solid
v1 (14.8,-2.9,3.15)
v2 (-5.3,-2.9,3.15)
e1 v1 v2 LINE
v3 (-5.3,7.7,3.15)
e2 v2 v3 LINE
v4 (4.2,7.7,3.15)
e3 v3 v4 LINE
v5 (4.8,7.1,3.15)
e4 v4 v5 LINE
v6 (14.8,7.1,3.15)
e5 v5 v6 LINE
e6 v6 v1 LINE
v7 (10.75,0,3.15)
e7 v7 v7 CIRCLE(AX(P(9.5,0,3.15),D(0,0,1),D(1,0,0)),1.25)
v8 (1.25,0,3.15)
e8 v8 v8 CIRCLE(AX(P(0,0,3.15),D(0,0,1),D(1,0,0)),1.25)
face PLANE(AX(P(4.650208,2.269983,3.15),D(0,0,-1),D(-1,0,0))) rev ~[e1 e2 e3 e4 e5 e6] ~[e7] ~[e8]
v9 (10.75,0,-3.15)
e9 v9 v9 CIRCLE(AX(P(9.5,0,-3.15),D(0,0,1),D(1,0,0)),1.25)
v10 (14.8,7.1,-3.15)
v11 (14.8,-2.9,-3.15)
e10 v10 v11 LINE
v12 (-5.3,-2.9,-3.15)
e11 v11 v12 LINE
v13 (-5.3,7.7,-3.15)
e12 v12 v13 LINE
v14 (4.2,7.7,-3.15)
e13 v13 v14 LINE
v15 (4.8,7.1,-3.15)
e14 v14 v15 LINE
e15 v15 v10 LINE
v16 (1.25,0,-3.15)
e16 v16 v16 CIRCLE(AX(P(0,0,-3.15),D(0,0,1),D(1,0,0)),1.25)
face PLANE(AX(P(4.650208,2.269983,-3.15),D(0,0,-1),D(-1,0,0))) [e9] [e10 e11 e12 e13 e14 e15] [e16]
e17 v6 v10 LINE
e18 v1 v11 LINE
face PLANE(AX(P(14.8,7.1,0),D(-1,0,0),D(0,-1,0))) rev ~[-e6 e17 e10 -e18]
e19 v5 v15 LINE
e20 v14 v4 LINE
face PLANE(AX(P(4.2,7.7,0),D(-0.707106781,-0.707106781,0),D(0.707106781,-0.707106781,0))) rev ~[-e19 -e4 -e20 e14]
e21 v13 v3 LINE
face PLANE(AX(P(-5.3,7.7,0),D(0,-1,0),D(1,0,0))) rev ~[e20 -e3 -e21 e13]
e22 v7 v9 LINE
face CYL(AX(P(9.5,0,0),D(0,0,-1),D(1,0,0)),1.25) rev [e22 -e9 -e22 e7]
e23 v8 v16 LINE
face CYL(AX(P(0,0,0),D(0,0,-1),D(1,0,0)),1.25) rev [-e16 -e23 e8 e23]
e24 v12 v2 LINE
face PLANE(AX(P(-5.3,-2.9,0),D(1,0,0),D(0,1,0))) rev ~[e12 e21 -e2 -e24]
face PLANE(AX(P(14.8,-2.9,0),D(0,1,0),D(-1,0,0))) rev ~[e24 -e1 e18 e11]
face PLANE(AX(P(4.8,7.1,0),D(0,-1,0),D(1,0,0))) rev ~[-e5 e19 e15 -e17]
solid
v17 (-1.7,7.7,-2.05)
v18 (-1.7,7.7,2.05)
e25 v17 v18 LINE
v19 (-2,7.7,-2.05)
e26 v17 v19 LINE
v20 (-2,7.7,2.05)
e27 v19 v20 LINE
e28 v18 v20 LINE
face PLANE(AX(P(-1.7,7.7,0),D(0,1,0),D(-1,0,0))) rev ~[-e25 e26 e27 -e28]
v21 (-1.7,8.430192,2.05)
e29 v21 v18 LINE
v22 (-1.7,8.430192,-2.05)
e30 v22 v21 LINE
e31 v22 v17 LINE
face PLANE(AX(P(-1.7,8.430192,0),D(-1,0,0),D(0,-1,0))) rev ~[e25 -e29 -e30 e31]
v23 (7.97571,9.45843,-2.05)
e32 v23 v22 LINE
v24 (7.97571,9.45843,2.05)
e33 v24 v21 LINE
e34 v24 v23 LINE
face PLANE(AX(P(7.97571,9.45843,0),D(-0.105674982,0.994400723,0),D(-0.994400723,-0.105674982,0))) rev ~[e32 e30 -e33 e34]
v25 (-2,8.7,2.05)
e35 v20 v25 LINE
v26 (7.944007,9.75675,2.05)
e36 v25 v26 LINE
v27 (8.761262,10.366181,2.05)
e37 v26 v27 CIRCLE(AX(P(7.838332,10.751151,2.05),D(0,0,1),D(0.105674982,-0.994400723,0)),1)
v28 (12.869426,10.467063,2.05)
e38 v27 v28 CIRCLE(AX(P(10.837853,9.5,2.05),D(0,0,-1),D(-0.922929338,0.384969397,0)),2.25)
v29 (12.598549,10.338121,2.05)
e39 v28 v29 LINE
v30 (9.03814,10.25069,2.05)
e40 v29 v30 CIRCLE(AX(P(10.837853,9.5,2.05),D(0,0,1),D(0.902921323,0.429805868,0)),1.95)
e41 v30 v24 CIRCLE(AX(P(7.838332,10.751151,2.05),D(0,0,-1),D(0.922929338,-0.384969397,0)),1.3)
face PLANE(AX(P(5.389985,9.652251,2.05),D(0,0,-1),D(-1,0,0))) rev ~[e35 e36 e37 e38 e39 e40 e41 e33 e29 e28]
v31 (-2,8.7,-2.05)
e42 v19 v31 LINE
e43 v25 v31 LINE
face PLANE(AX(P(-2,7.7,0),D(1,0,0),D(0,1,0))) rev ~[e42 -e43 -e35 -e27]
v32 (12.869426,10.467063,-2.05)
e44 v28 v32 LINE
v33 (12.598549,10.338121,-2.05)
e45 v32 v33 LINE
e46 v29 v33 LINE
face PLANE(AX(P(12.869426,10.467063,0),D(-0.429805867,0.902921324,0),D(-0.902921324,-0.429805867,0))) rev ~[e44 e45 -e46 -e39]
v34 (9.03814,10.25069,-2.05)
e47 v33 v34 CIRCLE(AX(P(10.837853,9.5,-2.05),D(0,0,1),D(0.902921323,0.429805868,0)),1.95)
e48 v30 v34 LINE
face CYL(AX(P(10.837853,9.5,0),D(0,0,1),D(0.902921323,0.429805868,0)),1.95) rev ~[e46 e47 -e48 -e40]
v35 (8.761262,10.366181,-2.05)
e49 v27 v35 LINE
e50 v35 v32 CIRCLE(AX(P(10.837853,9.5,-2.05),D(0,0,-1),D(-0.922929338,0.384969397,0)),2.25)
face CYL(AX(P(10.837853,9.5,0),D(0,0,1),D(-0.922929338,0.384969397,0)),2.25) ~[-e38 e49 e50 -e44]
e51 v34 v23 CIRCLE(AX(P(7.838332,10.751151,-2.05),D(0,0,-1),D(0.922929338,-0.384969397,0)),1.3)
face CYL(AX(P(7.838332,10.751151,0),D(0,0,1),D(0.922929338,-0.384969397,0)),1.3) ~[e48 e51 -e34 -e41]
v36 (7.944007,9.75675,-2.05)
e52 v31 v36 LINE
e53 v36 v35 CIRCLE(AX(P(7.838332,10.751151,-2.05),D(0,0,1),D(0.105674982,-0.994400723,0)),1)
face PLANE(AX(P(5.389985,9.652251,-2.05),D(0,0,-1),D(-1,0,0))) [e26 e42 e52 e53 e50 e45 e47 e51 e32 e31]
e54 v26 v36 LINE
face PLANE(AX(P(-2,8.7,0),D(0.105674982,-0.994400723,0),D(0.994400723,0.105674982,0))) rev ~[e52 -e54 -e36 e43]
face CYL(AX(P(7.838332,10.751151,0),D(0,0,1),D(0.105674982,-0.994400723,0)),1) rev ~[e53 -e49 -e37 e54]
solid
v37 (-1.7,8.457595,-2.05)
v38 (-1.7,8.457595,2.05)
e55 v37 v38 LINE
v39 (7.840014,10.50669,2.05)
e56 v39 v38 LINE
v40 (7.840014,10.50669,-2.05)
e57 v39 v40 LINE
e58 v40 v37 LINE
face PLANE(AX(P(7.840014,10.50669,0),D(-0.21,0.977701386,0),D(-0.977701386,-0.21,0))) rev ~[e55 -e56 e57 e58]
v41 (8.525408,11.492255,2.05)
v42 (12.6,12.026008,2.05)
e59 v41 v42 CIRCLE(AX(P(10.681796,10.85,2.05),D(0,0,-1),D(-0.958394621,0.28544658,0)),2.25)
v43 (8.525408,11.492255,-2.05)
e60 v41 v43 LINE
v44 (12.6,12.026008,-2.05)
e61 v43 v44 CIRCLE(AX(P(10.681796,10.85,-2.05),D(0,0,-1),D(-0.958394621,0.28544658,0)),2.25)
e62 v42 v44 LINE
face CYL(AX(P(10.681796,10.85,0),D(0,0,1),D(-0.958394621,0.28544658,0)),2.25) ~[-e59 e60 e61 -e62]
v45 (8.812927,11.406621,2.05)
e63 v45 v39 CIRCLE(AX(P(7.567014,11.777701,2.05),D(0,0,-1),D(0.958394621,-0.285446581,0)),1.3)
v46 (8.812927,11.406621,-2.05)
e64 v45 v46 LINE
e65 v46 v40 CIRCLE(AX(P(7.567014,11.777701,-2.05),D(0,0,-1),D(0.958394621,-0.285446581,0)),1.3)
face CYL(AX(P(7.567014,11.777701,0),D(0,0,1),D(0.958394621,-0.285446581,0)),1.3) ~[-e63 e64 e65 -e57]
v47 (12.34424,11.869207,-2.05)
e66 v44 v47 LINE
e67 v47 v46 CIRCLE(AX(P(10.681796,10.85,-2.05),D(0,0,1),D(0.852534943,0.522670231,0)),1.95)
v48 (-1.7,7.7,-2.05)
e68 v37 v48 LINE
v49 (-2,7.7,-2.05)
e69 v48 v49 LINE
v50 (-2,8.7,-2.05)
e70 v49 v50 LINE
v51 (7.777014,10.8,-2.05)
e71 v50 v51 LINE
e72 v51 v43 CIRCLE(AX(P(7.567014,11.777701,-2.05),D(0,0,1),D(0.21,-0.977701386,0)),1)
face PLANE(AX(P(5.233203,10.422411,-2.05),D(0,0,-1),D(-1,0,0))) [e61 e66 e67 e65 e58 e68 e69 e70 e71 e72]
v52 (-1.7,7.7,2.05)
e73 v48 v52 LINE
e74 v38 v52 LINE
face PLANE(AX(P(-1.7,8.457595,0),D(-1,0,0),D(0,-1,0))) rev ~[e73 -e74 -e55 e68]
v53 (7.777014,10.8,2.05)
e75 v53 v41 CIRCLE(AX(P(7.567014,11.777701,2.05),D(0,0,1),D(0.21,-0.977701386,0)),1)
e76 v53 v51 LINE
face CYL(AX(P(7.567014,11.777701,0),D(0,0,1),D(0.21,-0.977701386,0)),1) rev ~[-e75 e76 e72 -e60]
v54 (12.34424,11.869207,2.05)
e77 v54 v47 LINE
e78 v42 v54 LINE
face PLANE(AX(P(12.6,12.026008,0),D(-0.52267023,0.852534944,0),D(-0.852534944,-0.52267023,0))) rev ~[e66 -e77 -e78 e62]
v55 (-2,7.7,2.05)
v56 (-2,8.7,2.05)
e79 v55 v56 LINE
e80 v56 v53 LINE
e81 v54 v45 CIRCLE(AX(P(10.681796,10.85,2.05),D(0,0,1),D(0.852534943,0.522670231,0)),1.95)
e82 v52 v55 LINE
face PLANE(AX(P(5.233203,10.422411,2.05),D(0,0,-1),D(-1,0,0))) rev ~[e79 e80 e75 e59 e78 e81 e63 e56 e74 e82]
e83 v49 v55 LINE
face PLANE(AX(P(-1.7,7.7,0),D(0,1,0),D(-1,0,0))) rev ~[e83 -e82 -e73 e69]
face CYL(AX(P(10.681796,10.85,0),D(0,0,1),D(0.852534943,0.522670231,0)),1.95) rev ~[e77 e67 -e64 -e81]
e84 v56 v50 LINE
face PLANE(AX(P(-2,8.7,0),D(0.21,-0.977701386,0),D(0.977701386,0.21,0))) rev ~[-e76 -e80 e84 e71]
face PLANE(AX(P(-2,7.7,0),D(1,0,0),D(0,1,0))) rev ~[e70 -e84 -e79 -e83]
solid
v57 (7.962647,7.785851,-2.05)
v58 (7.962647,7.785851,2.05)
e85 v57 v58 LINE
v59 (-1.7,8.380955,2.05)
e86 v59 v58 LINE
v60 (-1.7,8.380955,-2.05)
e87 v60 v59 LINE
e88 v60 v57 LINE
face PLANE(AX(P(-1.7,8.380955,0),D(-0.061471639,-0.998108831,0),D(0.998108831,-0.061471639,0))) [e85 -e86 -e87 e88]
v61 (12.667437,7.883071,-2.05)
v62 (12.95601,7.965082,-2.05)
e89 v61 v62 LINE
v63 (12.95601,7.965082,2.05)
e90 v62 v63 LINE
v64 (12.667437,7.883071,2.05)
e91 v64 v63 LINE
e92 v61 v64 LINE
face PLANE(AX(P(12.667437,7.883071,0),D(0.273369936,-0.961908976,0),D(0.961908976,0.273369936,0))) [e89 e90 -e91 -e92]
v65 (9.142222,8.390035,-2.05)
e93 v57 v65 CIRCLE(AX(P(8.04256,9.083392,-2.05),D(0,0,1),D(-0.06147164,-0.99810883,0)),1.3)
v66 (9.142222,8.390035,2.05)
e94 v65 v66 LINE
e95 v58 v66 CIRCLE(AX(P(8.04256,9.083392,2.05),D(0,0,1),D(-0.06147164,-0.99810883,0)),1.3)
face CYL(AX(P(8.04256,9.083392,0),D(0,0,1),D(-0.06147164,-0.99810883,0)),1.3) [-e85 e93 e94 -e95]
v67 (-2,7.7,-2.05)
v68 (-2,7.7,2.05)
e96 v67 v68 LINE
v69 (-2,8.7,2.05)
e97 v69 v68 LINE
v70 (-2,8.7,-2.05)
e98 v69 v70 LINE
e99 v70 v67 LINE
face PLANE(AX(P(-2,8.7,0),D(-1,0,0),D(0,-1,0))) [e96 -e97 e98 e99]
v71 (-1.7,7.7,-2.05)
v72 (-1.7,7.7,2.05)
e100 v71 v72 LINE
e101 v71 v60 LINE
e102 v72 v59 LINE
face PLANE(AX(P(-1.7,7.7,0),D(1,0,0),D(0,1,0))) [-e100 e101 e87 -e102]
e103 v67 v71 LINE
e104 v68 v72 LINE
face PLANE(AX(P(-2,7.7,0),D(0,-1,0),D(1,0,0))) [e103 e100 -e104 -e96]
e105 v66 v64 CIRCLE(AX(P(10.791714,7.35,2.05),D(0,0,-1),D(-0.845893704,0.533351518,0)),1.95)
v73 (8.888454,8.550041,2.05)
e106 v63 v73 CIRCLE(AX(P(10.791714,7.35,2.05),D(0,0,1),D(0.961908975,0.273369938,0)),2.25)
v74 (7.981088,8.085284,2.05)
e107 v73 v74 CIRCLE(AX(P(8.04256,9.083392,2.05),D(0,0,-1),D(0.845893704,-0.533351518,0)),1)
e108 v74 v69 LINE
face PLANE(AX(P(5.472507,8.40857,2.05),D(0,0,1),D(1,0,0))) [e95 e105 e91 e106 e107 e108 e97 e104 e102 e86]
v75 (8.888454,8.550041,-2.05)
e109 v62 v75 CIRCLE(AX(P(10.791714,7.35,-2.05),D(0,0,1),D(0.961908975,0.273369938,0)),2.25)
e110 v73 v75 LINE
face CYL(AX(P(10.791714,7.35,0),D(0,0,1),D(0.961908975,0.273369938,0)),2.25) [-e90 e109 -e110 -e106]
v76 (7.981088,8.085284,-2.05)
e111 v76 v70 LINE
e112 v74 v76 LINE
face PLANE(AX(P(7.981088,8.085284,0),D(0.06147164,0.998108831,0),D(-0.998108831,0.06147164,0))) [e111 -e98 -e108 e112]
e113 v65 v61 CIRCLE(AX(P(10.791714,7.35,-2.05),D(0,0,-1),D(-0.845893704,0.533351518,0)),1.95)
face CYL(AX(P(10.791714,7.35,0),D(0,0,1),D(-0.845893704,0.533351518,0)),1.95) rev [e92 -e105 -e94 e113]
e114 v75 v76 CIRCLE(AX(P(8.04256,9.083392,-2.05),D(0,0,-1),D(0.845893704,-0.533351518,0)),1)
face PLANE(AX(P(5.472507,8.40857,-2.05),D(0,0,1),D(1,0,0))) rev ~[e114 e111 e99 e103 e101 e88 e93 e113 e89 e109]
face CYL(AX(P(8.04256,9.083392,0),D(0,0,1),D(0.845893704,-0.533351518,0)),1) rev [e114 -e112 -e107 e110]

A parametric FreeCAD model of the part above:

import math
import FreeCAD as App
import Part
import Sketcher

V = App.Vector
Q = App.Units.Quantity

doc = App.newDocument("Part")
body = doc.addObject("PartDesign::Body", "Body")

sketch1 = body.newObject("Sketcher::SketchObject", "Sketch")
sketch1.AttachmentSupport = (doc.getObject("XY_Plane"), [""])
sketch1.MapMode = "FlatFace"
sketch1.addGeometry(Part.LineSegment(V(4.8, 7.1, 0), V(4.2, 7.7, 0)), False)
sketch1.addGeometry(Part.LineSegment(V(4.2, 7.7, 0), V(-5.3, 7.7, 0)), False)
sketch1.addGeometry(Part.LineSegment(V(-5.3, 7.7, 0), V(-5.3, -2.9, 0)), False)
sketch1.addGeometry(Part.LineSegment(V(-5.3, -2.9, 0), V(14.8, -2.9, 0)), False)
sketch1.addGeometry(Part.LineSegment(V(14.8, -2.9, 0), V(14.8, 7.1, 0)), False)
sketch1.addGeometry(Part.LineSegment(V(14.8, 7.1, 0), V(4.8, 7.1, 0)), False)
sketch1.addGeometry(Part.Circle(V(9.5, 0, 0), V(0, 0, 1), 1.2), False)
sketch1.addGeometry(Part.Circle(V(0, 0, 0), V(0, 0, 1), 1.2), False)
sketch1.addConstraint(Sketcher.Constraint("Coincident", 0, 2, 1, 1))
sketch1.addConstraint(Sketcher.Constraint("Coincident", 1, 2, 2, 1))
sketch1.addConstraint(Sketcher.Constraint("Coincident", 2, 2, 3, 1))
sketch1.addConstraint(Sketcher.Constraint("Coincident", 3, 2, 4, 1))
sketch1.addConstraint(Sketcher.Constraint("Coincident", 4, 2, 5, 1))
sketch1.addConstraint(Sketcher.Constraint("Coincident", 5, 2, 0, 1))
sketch1.addConstraint(Sketcher.Constraint("Horizontal", 1))
sketch1.addConstraint(Sketcher.Constraint("Vertical", 2))
sketch1.addConstraint(Sketcher.Constraint("Horizontal", 3))
sketch1.addConstraint(Sketcher.Constraint("Vertical", 4))
sketch1.addConstraint(Sketcher.Constraint("Horizontal", 5))
sketch1.addConstraint(Sketcher.Constraint("Coincident", 7, 3, -1, 1))
sketch1.addConstraint(Sketcher.Constraint("Equal", 6, 7))
sketch1.addConstraint(Sketcher.Constraint("PointOnObject", 6, 3, -1))
sketch1.addConstraint(Sketcher.Constraint("Equal", 5, 4))
sketch1.addConstraint(Sketcher.Constraint("Diameter", 6, Q("2.5 mm")))
sketch1.addConstraint(Sketcher.Constraint("DistanceX", 5, 2, 5, 1, Q("10 mm")))
sketch1.addConstraint(Sketcher.Constraint("Angle", 0, Q("135 deg")))
sketch1.addConstraint(Sketcher.Constraint("DistanceX", 1, 2, 1, 1, Q("9.5 mm")))
sketch1.addConstraint(Sketcher.Constraint("DistanceX", 3, 1, 3, 2, Q("20.1 mm")))
sketch1.addConstraint(Sketcher.Constraint("DistanceX", -1, 1, 6, 3, Q("9.5 mm")))
sketch1.addConstraint(Sketcher.Constraint("DistanceX", -1, 1, 0, 2, Q("4.2 mm")))
sketch1.addConstraint(Sketcher.Constraint("DistanceY", -1, 1, 0, 2, Q("7.7 mm")))
pad1 = body.newObject("PartDesign::Pad", "Pad")
pad1.Profile = sketch1
pad1.Length = 6.3
pad1.Midplane = True
body2 = doc.addObject("PartDesign::Body", "Body001")

sketch2 = body2.newObject("Sketcher::SketchObject", "Sketch001")
sketch2.AttachmentSupport = (doc.getObject("XY_Plane001"), [""])
sketch2.MapMode = "FlatFace"
sketch2.addGeometry(Part.LineSegment(V(-2, 8.7, 0), V(-2, 7.7, 0)), False)
sketch2.addGeometry(Part.LineSegment(V(-2, 7.7, 0), V(-1.7, 7.7, 0)), False)
sketch2.addGeometry(Part.LineSegment(V(-1.7, 7.7, 0), V(-1.7, 8.46, 0)), False)
sketch2.addGeometry(Part.LineSegment(V(-1.7, 8.46, 0), V(7.84, 10.51, 0)), False)
sketch2.addGeometry(Part.ArcOfCircle(Part.Circle(V(7.57, 11.78, 0), V(0, 0, 1), 1.3), math.radians(-78), math.radians(-17)), False)
sketch2.addGeometry(Part.ArcOfCircle(Part.Circle(V(10.68, 10.85, 0), V(0, 0, 1), 1.95), math.radians(32), math.radians(163)), False)
sketch2.addGeometry(Part.LineSegment(V(12.34, 11.87, 0), V(12.6, 12.03, 0)), False)
sketch2.addGeometry(Part.ArcOfCircle(Part.Circle(V(10.68, 10.85, 0), V(0, 0, 1), 2.25), math.radians(32), math.radians(163)), False)
sketch2.addGeometry(Part.ArcOfCircle(Part.Circle(V(7.57, 11.78, 0), V(0, 0, 1), 1), math.radians(-78), math.radians(-17)), False)
sketch2.addGeometry(Part.LineSegment(V(7.78, 10.8, 0), V(-2, 8.7, 0)), False)
sketch2.addConstraint(Sketcher.Constraint("Coincident", 0, 2, 1, 1))
sketch2.addConstraint(Sketcher.Constraint("Coincident", 1, 2, 2, 1))
sketch2.addConstraint(Sketcher.Constraint("Coincident", 2, 2, 3, 1))
sketch2.addConstraint(Sketcher.Constraint("Tangent", 3, 2, 4, 1))
sketch2.addConstraint(Sketcher.Constraint("Tangent", 4, 2, 5, 2))
sketch2.addConstraint(Sketcher.Constraint("Coincident", 5, 1, 6, 1))
sketch2.addConstraint(Sketcher.Constraint("Coincident", 6, 2, 7, 1))
sketch2.addConstraint(Sketcher.Constraint("Tangent", 7, 2, 8, 2))
sketch2.addConstraint(Sketcher.Constraint("Tangent", 8, 1, 9, 1))
sketch2.addConstraint(Sketcher.Constraint("Coincident", 9, 2, 0, 1))
sketch2.addConstraint(Sketcher.Constraint("Vertical", 0))
sketch2.addConstraint(Sketcher.Constraint("Horizontal", 1))
sketch2.addConstraint(Sketcher.Constraint("Vertical", 2))
sketch2.addConstraint(Sketcher.Constraint("Coincident", 7, 3, 5, 3))
sketch2.addConstraint(Sketcher.Constraint("Coincident", 8, 3, 4, 3))
sketch2.addConstraint(Sketcher.Constraint("Parallel", 3, 9))
sketch2.addConstraint(Sketcher.Constraint("Radius", 8, Q("1 mm")))
sketch2.addConstraint(Sketcher.Constraint("Radius", 4, Q("1.3 mm")))
sketch2.addConstraint(Sketcher.Constraint("DistanceY", 0, 2, 0, 1, Q("1 mm")))
sketch2.addConstraint(Sketcher.Constraint("Radius", 5, Q("1.95 mm")))
sketch2.addConstraint(Sketcher.Constraint("Distance", 9, Q("10 mm")))
sketch2.addConstraint(Sketcher.Constraint("DistanceX", 1, 1, 1, 2, Q("0.3 mm")))
sketch2.addConstraint(Sketcher.Constraint("DistanceX", 0, 2, -1, 1, Q("2 mm")))
sketch2.addConstraint(Sketcher.Constraint("DistanceY", -1, 1, 0, 2, Q("7.7 mm")))
sketch2.addConstraint(Sketcher.Constraint("DistanceX", -1, 1, 6, 2, Q("12.6 mm")))
sketch2.addConstraint(Sketcher.Constraint("DistanceY", -1, 1, 8, 1, Q("10.8 mm")))
sketch2.addConstraint(Sketcher.Constraint("DistanceY", -1, 1, 5, 3, Q("10.85 mm")))
sketch2.addConstraint(Sketcher.Constraint("DistanceY", 5, 1, 6, 2, Q("0.156801 mm")))
pad2 = body2.newObject("PartDesign::Pad", "Pad001")
pad2.Profile = sketch2
pad2.Length = 4.1
pad2.Midplane = True
body3 = doc.addObject("PartDesign::Body", "Body002")

sketch3 = body3.newObject("Sketcher::SketchObject", "Sketch002")
sketch3.AttachmentSupport = (doc.getObject("XY_Plane002"), [""])
sketch3.MapMode = "FlatFace"
sketch3.addGeometry(Part.LineSegment(V(-2, 8.7, 0), V(-2, 7.7, 0)), False)
sketch3.addGeometry(Part.LineSegment(V(-2, 7.7, 0), V(-1.7, 7.7, 0)), False)
sketch3.addGeometry(Part.LineSegment(V(-1.7, 7.7, 0), V(-1.7, 8.43, 0)), False)
sketch3.addGeometry(Part.LineSegment(V(-1.7, 8.43, 0), V(7.98, 9.46, 0)), False)
sketch3.addGeometry(Part.ArcOfCircle(Part.Circle(V(7.84, 10.75, 0), V(0, 0, 1), 1.3), math.radians(-84), math.radians(-23)), False)
sketch3.addGeometry(Part.ArcOfCircle(Part.Circle(V(10.84, 9.5, 0), V(0, 0, 1), 1.95), math.radians(25), math.radians(157)), False)
sketch3.addGeometry(Part.LineSegment(V(12.6, 10.34, 0), V(12.87, 10.47, 0)), False)
sketch3.addGeometry(Part.ArcOfCircle(Part.Circle(V(10.84, 9.5, 0), V(0, 0, 1), 2.25), math.radians(25), math.radians(157)), False)
sketch3.addGeometry(Part.ArcOfCircle(Part.Circle(V(7.84, 10.75, 0), V(0, 0, 1), 1), math.radians(-84), math.radians(-23)), False)
sketch3.addGeometry(Part.LineSegment(V(7.94, 9.76, 0), V(-2, 8.7, 0)), False)
sketch3.addConstraint(Sketcher.Constraint("Coincident", 0, 2, 1, 1))
sketch3.addConstraint(Sketcher.Constraint("Coincident", 1, 2, 2, 1))
sketch3.addConstraint(Sketcher.Constraint("Coincident", 2, 2, 3, 1))
sketch3.addConstraint(Sketcher.Constraint("Tangent", 3, 2, 4, 1))
sketch3.addConstraint(Sketcher.Constraint("Tangent", 4, 2, 5, 2))
sketch3.addConstraint(Sketcher.Constraint("Coincident", 5, 1, 6, 1))
sketch3.addConstraint(Sketcher.Constraint("Coincident", 6, 2, 7, 1))
sketch3.addConstraint(Sketcher.Constraint("Tangent", 7, 2, 8, 2))
sketch3.addConstraint(Sketcher.Constraint("Tangent", 8, 1, 9, 1))
sketch3.addConstraint(Sketcher.Constraint("Coincident", 9, 2, 0, 1))
sketch3.addConstraint(Sketcher.Constraint("Vertical", 0))
sketch3.addConstraint(Sketcher.Constraint("Horizontal", 1))
sketch3.addConstraint(Sketcher.Constraint("Vertical", 2))
sketch3.addConstraint(Sketcher.Constraint("Coincident", 7, 3, 5, 3))
sketch3.addConstraint(Sketcher.Constraint("Coincident", 8, 3, 4, 3))
sketch3.addConstraint(Sketcher.Constraint("Parallel", 3, 9))
sketch3.addConstraint(Sketcher.Constraint("Radius", 8, Q("1 mm")))
sketch3.addConstraint(Sketcher.Constraint("Radius", 4, Q("1.3 mm")))
sketch3.addConstraint(Sketcher.Constraint("DistanceY", 0, 2, 0, 1, Q("1 mm")))
sketch3.addConstraint(Sketcher.Constraint("Radius", 5, Q("1.95 mm")))
sketch3.addConstraint(Sketcher.Constraint("Distance", 9, Q("10 mm")))
sketch3.addConstraint(Sketcher.Constraint("DistanceX", 1, 1, 1, 2, Q("0.3 mm")))
sketch3.addConstraint(Sketcher.Constraint("DistanceX", 0, 2, -1, 1, Q("2 mm")))
sketch3.addConstraint(Sketcher.Constraint("DistanceY", -1, 1, 5, 3, Q("9.5 mm")))
sketch3.addConstraint(Sketcher.Constraint("DistanceY", -1, 1, 0, 2, Q("7.7 mm")))
sketch3.addConstraint(Sketcher.Constraint("DistanceY", 2, 1, 2, 2, Q("0.730192 mm")))
sketch3.addConstraint(Sketcher.Constraint("DistanceX", -1, 1, 5, 1, Q("12.598549 mm")))
sketch3.addConstraint(Sketcher.Constraint("DistanceY", 5, 1, 6, 2, Q("0.128942 mm")))
pad3 = body3.newObject("PartDesign::Pad", "Pad002")
pad3.Profile = sketch3
pad3.Length = 4.1
pad3.Midplane = True
body4 = doc.addObject("PartDesign::Body", "Body003")

sketch4 = body4.newObject("Sketcher::SketchObject", "Sketch003")
sketch4.AttachmentSupport = (doc.getObject("XY_Plane003"), [""])
sketch4.MapMode = "FlatFace"
sketch4.addGeometry(Part.LineSegment(V(-2, 8.7, 0), V(-2, 7.7, 0)), False)
sketch4.addGeometry(Part.LineSegment(V(-2, 7.7, 0), V(-1.7, 7.7, 0)), False)
sketch4.addGeometry(Part.LineSegment(V(-1.7, 7.7, 0), V(-1.7, 8.38, 0)), False)
sketch4.addGeometry(Part.LineSegment(V(-1.7, 8.38, 0), V(7.96, 7.79, 0)), False)
sketch4.addGeometry(Part.ArcOfCircle(Part.Circle(V(8.04, 9.08, 0), V(0, 0, 1), 1.3), math.radians(-94), math.radians(-32)), False)
sketch4.addGeometry(Part.ArcOfCircle(Part.Circle(V(10.79, 7.35, 0), V(0, 0, 1), 1.95), math.radians(16), math.radians(148)), False)
sketch4.addGeometry(Part.LineSegment(V(12.67, 7.88, 0), V(12.96, 7.97, 0)), False)
sketch4.addGeometry(Part.ArcOfCircle(Part.Circle(V(10.79, 7.35, 0), V(0, 0, 1), 2.25), math.radians(16), math.radians(148)), False)
sketch4.addGeometry(Part.ArcOfCircle(Part.Circle(V(8.04, 9.08, 0), V(0, 0, 1), 1), math.radians(-94), math.radians(-32)), False)
sketch4.addGeometry(Part.LineSegment(V(7.98, 8.09, 0), V(-2, 8.7, 0)), False)
sketch4.addConstraint(Sketcher.Constraint("Coincident", 0, 2, 1, 1))
sketch4.addConstraint(Sketcher.Constraint("Coincident", 1, 2, 2, 1))
sketch4.addConstraint(Sketcher.Constraint("Coincident", 2, 2, 3, 1))
sketch4.addConstraint(Sketcher.Constraint("Tangent", 3, 2, 4, 1))
sketch4.addConstraint(Sketcher.Constraint("Tangent", 4, 2, 5, 2))
sketch4.addConstraint(Sketcher.Constraint("Coincident", 5, 1, 6, 1))
sketch4.addConstraint(Sketcher.Constraint("Coincident", 6, 2, 7, 1))
sketch4.addConstraint(Sketcher.Constraint("Tangent", 7, 2, 8, 2))
sketch4.addConstraint(Sketcher.Constraint("Tangent", 8, 1, 9, 1))
sketch4.addConstraint(Sketcher.Constraint("Coincident", 9, 2, 0, 1))
sketch4.addConstraint(Sketcher.Constraint("Vertical", 0))
sketch4.addConstraint(Sketcher.Constraint("Horizontal", 1))
sketch4.addConstraint(Sketcher.Constraint("Vertical", 2))
sketch4.addConstraint(Sketcher.Constraint("Coincident", 7, 3, 5, 3))
sketch4.addConstraint(Sketcher.Constraint("Coincident", 8, 3, 4, 3))
sketch4.addConstraint(Sketcher.Constraint("Parallel", 3, 9))
sketch4.addConstraint(Sketcher.Constraint("Radius", 8, Q("1 mm")))
sketch4.addConstraint(Sketcher.Constraint("Radius", 4, Q("1.3 mm")))
sketch4.addConstraint(Sketcher.Constraint("DistanceY", 0, 2, 0, 1, Q("1 mm")))
sketch4.addConstraint(Sketcher.Constraint("Radius", 5, Q("1.95 mm")))
sketch4.addConstraint(Sketcher.Constraint("Distance", 9, Q("10 mm")))
sketch4.addConstraint(Sketcher.Constraint("DistanceX", 1, 1, 1, 2, Q("0.3 mm")))
sketch4.addConstraint(Sketcher.Constraint("DistanceX", 0, 2, -1, 1, Q("2 mm")))
sketch4.addConstraint(Sketcher.Constraint("DistanceY", -1, 1, 0, 2, Q("7.7 mm")))
sketch4.addConstraint(Sketcher.Constraint("DistanceY", -1, 1, 5, 3, Q("7.35 mm")))
sketch4.addConstraint(Sketcher.Constraint("DistanceY", 2, 1, 2, 2, Q("0.680955 mm")))
sketch4.addConstraint(Sketcher.Constraint("DistanceY", -1, 1, 5, 1, Q("7.883071 mm")))
sketch4.addConstraint(Sketcher.Constraint("DistanceX", -1, 1, 6, 2, Q("12.95601 mm")))
pad4 = body4.newObject("PartDesign::Pad", "Pad003")
pad4.Profile = sketch4
pad4.Length = 4.1
pad4.Midplane = True

doc.recompute()
